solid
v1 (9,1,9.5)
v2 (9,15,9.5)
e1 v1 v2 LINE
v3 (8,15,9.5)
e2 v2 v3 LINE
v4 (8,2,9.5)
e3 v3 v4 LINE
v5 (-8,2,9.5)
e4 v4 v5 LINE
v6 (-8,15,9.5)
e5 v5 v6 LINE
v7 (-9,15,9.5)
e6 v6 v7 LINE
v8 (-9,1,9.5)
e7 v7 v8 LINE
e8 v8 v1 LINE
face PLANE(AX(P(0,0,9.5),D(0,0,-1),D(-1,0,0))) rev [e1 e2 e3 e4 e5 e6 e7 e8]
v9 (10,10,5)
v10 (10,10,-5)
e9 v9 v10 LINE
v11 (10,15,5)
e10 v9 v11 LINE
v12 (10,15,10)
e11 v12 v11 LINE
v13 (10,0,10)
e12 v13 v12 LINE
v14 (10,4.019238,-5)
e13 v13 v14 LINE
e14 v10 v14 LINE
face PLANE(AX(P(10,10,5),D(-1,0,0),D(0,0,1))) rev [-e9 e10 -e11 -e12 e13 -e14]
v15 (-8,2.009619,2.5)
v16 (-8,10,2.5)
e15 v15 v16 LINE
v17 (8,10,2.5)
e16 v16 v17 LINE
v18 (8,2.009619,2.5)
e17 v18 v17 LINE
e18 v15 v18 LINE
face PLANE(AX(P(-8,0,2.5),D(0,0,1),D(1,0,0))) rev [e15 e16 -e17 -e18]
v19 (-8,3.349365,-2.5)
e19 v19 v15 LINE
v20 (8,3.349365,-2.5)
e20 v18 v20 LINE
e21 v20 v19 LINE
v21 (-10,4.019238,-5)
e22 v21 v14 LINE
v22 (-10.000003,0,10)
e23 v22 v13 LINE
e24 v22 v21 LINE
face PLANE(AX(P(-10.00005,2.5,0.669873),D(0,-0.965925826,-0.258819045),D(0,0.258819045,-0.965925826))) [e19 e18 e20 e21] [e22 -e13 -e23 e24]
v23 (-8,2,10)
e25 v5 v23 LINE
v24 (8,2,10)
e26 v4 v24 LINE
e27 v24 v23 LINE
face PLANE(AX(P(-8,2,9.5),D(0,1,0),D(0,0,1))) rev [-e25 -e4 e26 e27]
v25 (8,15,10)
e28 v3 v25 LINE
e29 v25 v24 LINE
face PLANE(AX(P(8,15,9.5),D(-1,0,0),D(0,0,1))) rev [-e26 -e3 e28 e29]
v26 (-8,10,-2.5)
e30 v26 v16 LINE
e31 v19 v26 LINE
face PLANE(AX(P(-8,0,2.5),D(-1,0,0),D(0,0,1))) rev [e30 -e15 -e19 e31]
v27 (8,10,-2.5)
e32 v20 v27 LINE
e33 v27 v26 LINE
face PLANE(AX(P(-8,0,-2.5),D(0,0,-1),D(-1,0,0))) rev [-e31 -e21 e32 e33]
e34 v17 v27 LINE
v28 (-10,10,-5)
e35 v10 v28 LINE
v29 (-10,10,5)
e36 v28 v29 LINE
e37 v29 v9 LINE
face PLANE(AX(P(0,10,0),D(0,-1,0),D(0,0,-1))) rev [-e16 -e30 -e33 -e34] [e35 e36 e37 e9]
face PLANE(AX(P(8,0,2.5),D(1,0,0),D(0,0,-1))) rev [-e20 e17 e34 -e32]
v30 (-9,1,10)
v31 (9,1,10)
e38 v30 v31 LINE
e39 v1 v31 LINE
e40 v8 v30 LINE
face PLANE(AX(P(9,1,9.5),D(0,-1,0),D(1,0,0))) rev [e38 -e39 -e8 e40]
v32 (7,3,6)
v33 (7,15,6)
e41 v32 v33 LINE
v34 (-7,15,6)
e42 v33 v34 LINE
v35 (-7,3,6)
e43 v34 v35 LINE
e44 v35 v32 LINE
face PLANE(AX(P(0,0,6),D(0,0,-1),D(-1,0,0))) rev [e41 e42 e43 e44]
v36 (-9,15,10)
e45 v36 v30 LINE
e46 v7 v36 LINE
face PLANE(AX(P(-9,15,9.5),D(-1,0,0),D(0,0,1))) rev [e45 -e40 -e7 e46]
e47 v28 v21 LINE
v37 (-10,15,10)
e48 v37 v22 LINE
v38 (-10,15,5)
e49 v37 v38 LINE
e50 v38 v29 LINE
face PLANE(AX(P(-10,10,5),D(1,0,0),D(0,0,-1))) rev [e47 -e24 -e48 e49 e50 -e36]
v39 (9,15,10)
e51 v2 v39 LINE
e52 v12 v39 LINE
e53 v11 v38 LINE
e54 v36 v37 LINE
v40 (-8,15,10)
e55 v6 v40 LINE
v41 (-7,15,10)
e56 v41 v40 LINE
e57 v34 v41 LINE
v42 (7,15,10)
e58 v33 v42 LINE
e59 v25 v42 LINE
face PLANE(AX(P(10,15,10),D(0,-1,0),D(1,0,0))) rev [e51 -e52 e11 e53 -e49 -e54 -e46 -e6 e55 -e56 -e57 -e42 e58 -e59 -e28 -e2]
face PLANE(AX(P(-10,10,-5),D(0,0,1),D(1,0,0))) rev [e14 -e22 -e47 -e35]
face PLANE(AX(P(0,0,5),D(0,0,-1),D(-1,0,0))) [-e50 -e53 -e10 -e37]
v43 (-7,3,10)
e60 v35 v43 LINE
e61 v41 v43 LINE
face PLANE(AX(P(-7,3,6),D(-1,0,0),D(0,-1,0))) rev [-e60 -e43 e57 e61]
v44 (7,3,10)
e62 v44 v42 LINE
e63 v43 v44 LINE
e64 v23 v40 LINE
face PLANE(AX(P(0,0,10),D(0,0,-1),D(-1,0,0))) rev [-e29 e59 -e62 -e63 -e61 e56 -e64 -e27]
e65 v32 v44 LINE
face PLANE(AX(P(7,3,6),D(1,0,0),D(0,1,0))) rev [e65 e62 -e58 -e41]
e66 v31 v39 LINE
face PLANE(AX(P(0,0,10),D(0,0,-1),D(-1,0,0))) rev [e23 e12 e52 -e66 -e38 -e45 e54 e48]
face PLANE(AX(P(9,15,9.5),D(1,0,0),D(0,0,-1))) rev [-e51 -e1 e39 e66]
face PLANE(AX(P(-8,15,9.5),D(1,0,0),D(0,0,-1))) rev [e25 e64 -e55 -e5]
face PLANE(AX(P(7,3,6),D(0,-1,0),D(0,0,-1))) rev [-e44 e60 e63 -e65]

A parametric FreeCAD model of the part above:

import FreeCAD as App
import Part
import Sketcher
from FreeCAD import Vector
Q = App.Units.Quantity

doc = App.newDocument("Part")
params = doc.addObject("Spreadsheet::Sheet", "Params")
for row, (alias, value) in enumerate([
    ("sketch1_width", "20 mm"),
    ("sketch1_height", "10 mm"),
    ("pad1_length", "10 mm"),
    ("sketch2_width", "16 mm"),
    ("sketch2_height", "5 mm"),
    ("sketch3_width", "20 mm"),
    ("sketch3_height", "15 mm"),
    ("pad2_length", "5 mm"),
    ("sketch4_width", "14 mm"),
    ("sketch4_height", "12 mm"),
    ("pocket2_length", "4 mm"),
    ("sketch5_width", "18 mm"),
    ("sketch5_width2", "1 mm"),
    ("sketch5_height", "14 mm"),
    ("sketch5_height2", "13 mm"),
    ("pocket3_length", "0.5 mm"),
    ("sketch6_height", "15 mm"),
], start=1):
    params.set(f"A{row}", alias)
    params.set(f"B{row}", "=" + value)
    params.setAlias(f"B{row}", alias)

body = doc.addObject("PartDesign::Body", "Body")

# Sketch on XZ plane
sketch1 = body.newObject("Sketcher::SketchObject", "Sketch")
sketch1.AttachmentSupport = (doc.getObject("XZ_Plane"), [""])
sketch1.MapMode = "FlatFace"
sketch1.addGeometry(Part.LineSegment(Vector(-10, -5, 0), Vector(-10, 5, 0)), False)
sketch1.addGeometry(Part.LineSegment(Vector(-10, 5, 0), Vector(10, 5, 0)), False)
sketch1.addGeometry(Part.LineSegment(Vector(10, 5, 0), Vector(10, -5, 0)), False)
sketch1.addGeometry(Part.LineSegment(Vector(10, -5, 0), Vector(-10, -5, 0)), False)
sketch1.addConstraint(Sketcher.Constraint("Coincident", 0, 2, 1, 1))
sketch1.addConstraint(Sketcher.Constraint("Coincident", 1, 2, 2, 1))
sketch1.addConstraint(Sketcher.Constraint("Coincident", 2, 2, 3, 1))
sketch1.addConstraint(Sketcher.Constraint("Coincident", 3, 2, 0, 1))
sketch1.addConstraint(Sketcher.Constraint("Vertical", 0))
sketch1.addConstraint(Sketcher.Constraint("Horizontal", 1))
sketch1.addConstraint(Sketcher.Constraint("Vertical", 2))
sketch1.addConstraint(Sketcher.Constraint("Horizontal", 3))
sketch1.addConstraint(Sketcher.Constraint("Symmetric", 0, 2, 2, 2, -1, 1))
sketch1.addConstraint(Sketcher.Constraint("DistanceX", 1, 1, 1, 2, Q("20 mm")))
sketch1.addConstraint(Sketcher.Constraint("DistanceY", 0, 1, 0, 2, Q("10 mm")))
sketch1.setExpression("Constraints[9]", "Params.sketch1_width")
sketch1.setExpression("Constraints[10]", "Params.sketch1_height")
pad1 = body.newObject("PartDesign::Pad", "Pad")
pad1.Profile = sketch1
pad1.setExpression("Length", "Params.pad1_length")
pad1.Reversed = True

# Sketch on XZ plane
sketch2 = body.newObject("Sketcher::SketchObject", "Sketch001")
sketch2.AttachmentSupport = (doc.getObject("XZ_Plane"), [""])
sketch2.MapMode = "FlatFace"
sketch2.AttachmentOffset = App.Placement(Vector(0, 0, -10), App.Rotation())
sketch2.addGeometry(Part.LineSegment(Vector(-8, -2, 0), Vector(-8, 2, 0)), False)
sketch2.addGeometry(Part.LineSegment(Vector(-8, 2, 0), Vector(8, 2, 0)), False)
sketch2.addGeometry(Part.LineSegment(Vector(8, 2, 0), Vector(8, -2, 0)), False)
sketch2.addGeometry(Part.LineSegment(Vector(8, -2, 0), Vector(-8, -2, 0)), False)
sketch2.addConstraint(Sketcher.Constraint("Coincident", 0, 2, 1, 1))
sketch2.addConstraint(Sketcher.Constraint("Coincident", 1, 2, 2, 1))
sketch2.addConstraint(Sketcher.Constraint("Coincident", 2, 2, 3, 1))
sketch2.addConstraint(Sketcher.Constraint("Coincident", 3, 2, 0, 1))
sketch2.addConstraint(Sketcher.Constraint("Vertical", 0))
sketch2.addConstraint(Sketcher.Constraint("Horizontal", 1))
sketch2.addConstraint(Sketcher.Constraint("Vertical", 2))
sketch2.addConstraint(Sketcher.Constraint("Horizontal", 3))
sketch2.addConstraint(Sketcher.Constraint("Symmetric", 0, 2, 2, 2, -1, 1))
sketch2.addConstraint(Sketcher.Constraint("DistanceX", 1, 1, 1, 2, Q("16 mm")))
sketch2.addConstraint(Sketcher.Constraint("DistanceY", 0, 1, 0, 2, Q("5 mm")))
sketch2.setExpression("Constraints[9]", "Params.sketch2_width")
sketch2.setExpression("Constraints[10]", "Params.sketch2_height")
pocket1 = body.newObject("PartDesign::Pocket", "Pocket")
pocket1.Profile = sketch2
pocket1.Type = "ThroughAll"
pocket1.Reversed = True

# Sketch on XY plane
sketch3 = body.newObject("Sketcher::SketchObject", "Sketch002")
sketch3.AttachmentSupport = (doc.getObject("XY_Plane"), [""])
sketch3.MapMode = "FlatFace"
sketch3.AttachmentOffset = App.Placement(Vector(0, 0, 5), App.Rotation())
sketch3.addGeometry(Part.LineSegment(Vector(-10, 15, 0), Vector(-10, 0, 0)), False)
sketch3.addGeometry(Part.LineSegment(Vector(-10, 0, 0), Vector(10, 0, 0)), False)
sketch3.addGeometry(Part.LineSegment(Vector(10, 0, 0), Vector(10, 15, 0)), False)
sketch3.addGeometry(Part.LineSegment(Vector(10, 15, 0), Vector(-10, 15, 0)), False)
sketch3.addConstraint(Sketcher.Constraint("Coincident", 0, 2, 1, 1))
sketch3.addConstraint(Sketcher.Constraint("Coincident", 1, 2, 2, 1))
sketch3.addConstraint(Sketcher.Constraint("Coincident", 2, 2, 3, 1))
sketch3.addConstraint(Sketcher.Constraint("Coincident", 3, 2, 0, 1))
sketch3.addConstraint(Sketcher.Constraint("Vertical", 0))
sketch3.addConstraint(Sketcher.Constraint("Horizontal", 1))
sketch3.addConstraint(Sketcher.Constraint("Vertical", 2))
sketch3.addConstraint(Sketcher.Constraint("Horizontal", 3))
sketch3.addConstraint(Sketcher.Constraint("Symmetric", 0, 2, 1, 2, -1, 1))
sketch3.addConstraint(Sketcher.Constraint("DistanceX", 1, 1, 1, 2, Q("20 mm")))
sketch3.addConstraint(Sketcher.Constraint("DistanceY", 0, 2, 0, 1, Q("15 mm")))
sketch3.setExpression("Constraints[9]", "Params.sketch3_width")
sketch3.setExpression("Constraints[10]", "Params.sketch3_height")
pad2 = body.newObject("PartDesign::Pad", "Pad001")
pad2.Profile = sketch3
pad2.setExpression("Length", "Params.pad2_length")

# Sketch on XY plane
sketch4 = body.newObject("Sketcher::SketchObject", "Sketch003")
sketch4.AttachmentSupport = (doc.getObject("XY_Plane"), [""])
sketch4.MapMode = "FlatFace"
sketch4.AttachmentOffset = App.Placement(Vector(0, 0, 10), App.Rotation())
sketch4.addGeometry(Part.LineSegment(Vector(-7, 15, 0), Vector(-7, 3, 0)), False)
sketch4.addGeometry(Part.LineSegment(Vector(-7, 3, 0), Vector(7, 3, 0)), False)
sketch4.addGeometry(Part.LineSegment(Vector(7, 3, 0), Vector(7, 15, 0)), False)
sketch4.addGeometry(Part.LineSegment(Vector(7, 15, 0), Vector(-7, 15, 0)), False)
sketch4.addConstraint(Sketcher.Constraint("Coincident", 0, 2, 1, 1))
sketch4.addConstraint(Sketcher.Constraint("Coincident", 1, 2, 2, 1))
sketch4.addConstraint(Sketcher.Constraint("Coincident", 2, 2, 3, 1))
sketch4.addConstraint(Sketcher.Constraint("Coincident", 3, 2, 0, 1))
sketch4.addConstraint(Sketcher.Constraint("Vertical", 0))
sketch4.addConstraint(Sketcher.Constraint("Horizontal", 1))
sketch4.addConstraint(Sketcher.Constraint("Vertical", 2))
sketch4.addConstraint(Sketcher.Constraint("Horizontal", 3))
sketch4.addConstraint(Sketcher.Constraint("DistanceX", 1, 1, 1, 2, Q("14 mm")))
sketch4.addConstraint(Sketcher.Constraint("DistanceY", 0, 2, 0, 1, Q("12 mm")))
sketch4.addConstraint(Sketcher.Constraint("DistanceX", 0, 2, -1, 1, Q("7 mm")))
sketch4.addConstraint(Sketcher.Constraint("DistanceY", -1, 1, 0, 2, Q("3 mm")))
sketch4.setExpression("Constraints[8]", "Params.sketch4_width")
sketch4.setExpression("Constraints[9]", "Params.sketch4_height")
pocket2 = body.newObject("PartDesign::Pocket", "Pocket001")
pocket2.Profile = sketch4
pocket2.setExpression("Length", "Params.pocket2_length")

# Sketch on XY plane
sketch5 = body.newObject("Sketcher::SketchObject", "Sketch004")
sketch5.AttachmentSupport = (doc.getObject("XY_Plane"), [""])
sketch5.MapMode = "FlatFace"
sketch5.AttachmentOffset = App.Placement(Vector(0, 0, 10), App.Rotation())
sketch5.addGeometry(Part.LineSegment(Vector(-9, 15, 0), Vector(-9, 1, 0)), False)
sketch5.addGeometry(Part.LineSegment(Vector(-9, 1, 0), Vector(9, 1, 0)), False)
sketch5.addGeometry(Part.LineSegment(Vector(9, 1, 0), Vector(9, 15, 0)), False)
sketch5.addGeometry(Part.LineSegment(Vector(9, 15, 0), Vector(8, 15, 0)), False)
sketch5.addGeometry(Part.LineSegment(Vector(8, 15, 0), Vector(8, 2, 0)), False)
sketch5.addGeometry(Part.LineSegment(Vector(8, 2, 0), Vector(-8, 2, 0)), False)
sketch5.addGeometry(Part.LineSegment(Vector(-8, 2, 0), Vector(-8, 15, 0)), False)
sketch5.addGeometry(Part.LineSegment(Vector(-8, 15, 0), Vector(-9, 15, 0)), False)
sketch5.addConstraint(Sketcher.Constraint("Coincident", 0, 2, 1, 1))
sketch5.addConstraint(Sketcher.Constraint("Coincident", 1, 2, 2, 1))
sketch5.addConstraint(Sketcher.Constraint("Coincident", 2, 2, 3, 1))
sketch5.addConstraint(Sketcher.Constraint("Coincident", 3, 2, 4, 1))
sketch5.addConstraint(Sketcher.Constraint("Coincident", 4, 2, 5, 1))
sketch5.addConstraint(Sketcher.Constraint("Coincident", 5, 2, 6, 1))
sketch5.addConstraint(Sketcher.Constraint("Coincident", 6, 2, 7, 1))
sketch5.addConstraint(Sketcher.Constraint("Coincident", 7, 2, 0, 1))
sketch5.addConstraint(Sketcher.Constraint("Vertical", 0))
sketch5.addConstraint(Sketcher.Constraint("Horizontal", 1))
sketch5.addConstraint(Sketcher.Constraint("Vertical", 2))
sketch5.addConstraint(Sketcher.Constraint("Horizontal", 3))
sketch5.addConstraint(Sketcher.Constraint("Vertical", 4))
sketch5.addConstraint(Sketcher.Constraint("Horizontal", 5))
sketch5.addConstraint(Sketcher.Constraint("Vertical", 6))
sketch5.addConstraint(Sketcher.Constraint("Horizontal", 7))
sketch5.addConstraint(Sketcher.Constraint("Symmetric", 3, 2, 6, 2, -2))
sketch5.addConstraint(Sketcher.Constraint("Equal", 3, 7))
sketch5.addConstraint(Sketcher.Constraint("DistanceX", 1, 1, 1, 2, Q("18 mm")))
sketch5.addConstraint(Sketcher.Constraint("DistanceX", 3, 2, 3, 1, Q("1 mm")))
sketch5.addConstraint(Sketcher.Constraint("DistanceY", 0, 2, 0, 1, Q("14 mm")))
sketch5.addConstraint(Sketcher.Constraint("DistanceY", 4, 2, 4, 1, Q("13 mm")))
sketch5.addConstraint(Sketcher.Constraint("DistanceY", -1, 1, 0, 2, Q("1 mm")))
sketch5.setExpression("Constraints[18]", "Params.sketch5_width")
sketch5.setExpression("Constraints[19]", "Params.sketch5_width2")
sketch5.setExpression("Constraints[20]", "Params.sketch5_height")
sketch5.setExpression("Constraints[21]", "Params.sketch5_height2")
pocket3 = body.newObject("PartDesign::Pocket", "Pocket002")
pocket3.Profile = sketch5
pocket3.setExpression("Length", "Params.pocket3_length")

# Sketch on YZ plane
sketch6 = body.newObject("Sketcher::SketchObject", "Sketch005")
sketch6.AttachmentSupport = (doc.getObject("YZ_Plane"), [""])
sketch6.MapMode = "FlatFace"
sketch6.AttachmentOffset = App.Placement(Vector(0, 0, 10), App.Rotation())
sketch6.addGeometry(Part.LineSegment(Vector(4, -5, 0), Vector(0, 10, 0)), False)
sketch6.addGeometry(Part.LineSegment(Vector(0, 10, 0), Vector(0, -5, 0)), False)
sketch6.addGeometry(Part.LineSegment(Vector(0, -5, 0), Vector(4, -5, 0)), False)
sketch6.addConstraint(Sketcher.Constraint("Coincident", 0, 2, 1, 1))
sketch6.addConstraint(Sketcher.Constraint("Coincident", 1, 2, 2, 1))
sketch6.addConstraint(Sketcher.Constraint("Coincident", 2, 2, 0, 1))
sketch6.addConstraint(Sketcher.Constraint("Vertical", 1))
sketch6.addConstraint(Sketcher.Constraint("Horizontal", 2))
sketch6.addConstraint(Sketcher.Constraint("PointOnObject", 0, 2, -2))
sketch6.addConstraint(Sketcher.Constraint("DistanceY", 1, 2, 1, 1, Q("15 mm")))
sketch6.addConstraint(Sketcher.Constraint("Angle", 0, Q("105 deg")))
sketch6.addConstraint(Sketcher.Constraint("DistanceY", -1, 1, 0, 2, Q("10 mm")))
sketch6.setExpression("Constraints[6]", "Params.sketch6_height")
pocket4 = body.newObject("PartDesign::Pocket", "Pocket003")
pocket4.Profile = sketch6
pocket4.Type = "ThroughAll"

doc.recompute()
